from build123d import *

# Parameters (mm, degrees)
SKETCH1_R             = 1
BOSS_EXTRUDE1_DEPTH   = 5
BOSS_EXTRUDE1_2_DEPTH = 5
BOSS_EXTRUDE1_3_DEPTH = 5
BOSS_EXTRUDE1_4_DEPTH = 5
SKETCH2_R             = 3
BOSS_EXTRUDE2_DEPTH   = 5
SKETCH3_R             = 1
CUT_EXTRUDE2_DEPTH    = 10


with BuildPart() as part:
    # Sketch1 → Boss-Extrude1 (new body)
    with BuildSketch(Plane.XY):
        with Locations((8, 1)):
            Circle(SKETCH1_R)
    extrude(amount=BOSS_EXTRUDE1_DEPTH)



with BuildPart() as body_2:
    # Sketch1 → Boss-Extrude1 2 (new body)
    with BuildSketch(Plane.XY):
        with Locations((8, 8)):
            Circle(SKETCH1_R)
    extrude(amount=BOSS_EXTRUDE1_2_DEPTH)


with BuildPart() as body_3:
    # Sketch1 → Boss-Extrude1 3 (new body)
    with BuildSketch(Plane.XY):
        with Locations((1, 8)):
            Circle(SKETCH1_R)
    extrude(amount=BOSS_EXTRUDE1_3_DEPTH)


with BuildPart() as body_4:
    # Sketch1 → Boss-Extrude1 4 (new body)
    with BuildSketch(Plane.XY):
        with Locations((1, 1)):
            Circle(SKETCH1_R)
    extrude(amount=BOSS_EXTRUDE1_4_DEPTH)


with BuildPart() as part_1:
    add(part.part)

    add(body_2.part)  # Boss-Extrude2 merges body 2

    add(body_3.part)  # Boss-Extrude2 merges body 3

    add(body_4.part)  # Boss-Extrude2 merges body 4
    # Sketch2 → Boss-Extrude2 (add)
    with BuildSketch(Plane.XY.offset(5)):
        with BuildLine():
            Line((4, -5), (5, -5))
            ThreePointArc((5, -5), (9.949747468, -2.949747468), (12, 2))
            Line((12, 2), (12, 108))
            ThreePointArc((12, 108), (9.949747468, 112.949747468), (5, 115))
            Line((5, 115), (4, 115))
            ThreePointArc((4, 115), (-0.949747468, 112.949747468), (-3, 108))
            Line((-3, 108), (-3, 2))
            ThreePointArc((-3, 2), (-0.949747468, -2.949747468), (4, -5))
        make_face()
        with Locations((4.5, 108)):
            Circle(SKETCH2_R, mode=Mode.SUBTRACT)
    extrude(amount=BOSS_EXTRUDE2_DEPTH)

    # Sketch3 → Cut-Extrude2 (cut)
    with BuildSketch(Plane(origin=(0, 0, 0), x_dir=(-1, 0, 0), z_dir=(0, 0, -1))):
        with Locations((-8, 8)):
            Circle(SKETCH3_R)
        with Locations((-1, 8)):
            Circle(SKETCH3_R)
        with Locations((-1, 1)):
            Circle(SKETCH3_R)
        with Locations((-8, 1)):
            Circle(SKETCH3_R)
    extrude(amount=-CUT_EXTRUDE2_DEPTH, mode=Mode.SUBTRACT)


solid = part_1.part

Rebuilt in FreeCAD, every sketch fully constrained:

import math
import FreeCAD as App
import Part
import Sketcher

V = App.Vector

doc = App.newDocument("Part")
params = doc.addObject("Spreadsheet::Sheet", "Params")
for row, (alias, value) in enumerate([
    ("sketch1_diameter", "2 mm"),
    ("pad1_length", "5 mm"),
    ("sketch2_diameter", "2 mm"),
    ("pad2_length", "5 mm"),
    ("sketch3_diameter", "2 mm"),
    ("pad3_length", "5 mm"),
    ("sketch4_diameter", "2 mm"),
    ("pad4_length", "5 mm"),
    ("sketch5_diameter", "6 mm"),
    ("sketch5_radius", "7 mm"),
    ("sketch5_width", "1 mm"),
    ("sketch5_height", "106 mm"),
    ("pad5_length", "5 mm"),
    ("sketch6_diameter", "2 mm"),
    ("pocket1_length", "10 mm"),
], start=1):
    params.set(f"A{row}", alias)
    params.set(f"B{row}", "=" + value)
    params.setAlias(f"B{row}", alias)

body = doc.addObject("PartDesign::Body", "Body")

sketch1 = body.newObject("Sketcher::SketchObject", "Sketch")
sketch1.AttachmentSupport = (doc.getObject("XY_Plane"), [""])
sketch1.MapMode = "FlatFace"
sketch1.addGeometry(Part.Circle(V(8, 1, 0), V(0, 0, 1), 1), False)
sketch1.addConstraint([
    Sketcher.Constraint("Diameter", 0, 2.0),
    Sketcher.Constraint("DistanceX", -1, 1, 0, 3, 8.0),
    Sketcher.Constraint("DistanceY", -1, 1, 0, 3, 1.0),
])
sketch1.setExpression("Constraints[0]", "Params.sketch1_diameter")
pad1 = body.newObject("PartDesign::Pad", "Pad")
pad1.Profile = sketch1
pad1.setExpression("Length", "Params.pad1_length")
body2 = doc.addObject("PartDesign::Body", "Body001")

sketch2 = body2.newObject("Sketcher::SketchObject", "Sketch001")
sketch2.AttachmentSupport = (doc.getObject("XY_Plane001"), [""])
sketch2.MapMode = "FlatFace"
sketch2.addGeometry(Part.Circle(V(8, 8, 0), V(0, 0, 1), 1), False)
sketch2.addConstraint([
    Sketcher.Constraint("Diameter", 0, 2.0),
    Sketcher.Constraint("DistanceX", -1, 1, 0, 3, 8.0),
    Sketcher.Constraint("DistanceY", -1, 1, 0, 3, 8.0),
])
sketch2.setExpression("Constraints[0]", "Params.sketch2_diameter")
pad2 = body2.newObject("PartDesign::Pad", "Pad001")
pad2.Profile = sketch2
pad2.setExpression("Length", "Params.pad2_length")
body3 = doc.addObject("PartDesign::Body", "Body002")

sketch3 = body3.newObject("Sketcher::SketchObject", "Sketch002")
sketch3.AttachmentSupport = (doc.getObject("XY_Plane002"), [""])
sketch3.MapMode = "FlatFace"
sketch3.addGeometry(Part.Circle(V(1, 8, 0), V(0, 0, 1), 1), False)
sketch3.addConstraint([
    Sketcher.Constraint("Diameter", 0, 2.0),
    Sketcher.Constraint("DistanceX", -1, 1, 0, 3, 1.0),
    Sketcher.Constraint("DistanceY", -1, 1, 0, 3, 8.0),
])
sketch3.setExpression("Constraints[0]", "Params.sketch3_diameter")
pad3 = body3.newObject("PartDesign::Pad", "Pad002")
pad3.Profile = sketch3
pad3.setExpression("Length", "Params.pad3_length")
body4 = doc.addObject("PartDesign::Body", "Body003")

sketch4 = body4.newObject("Sketcher::SketchObject", "Sketch003")
sketch4.AttachmentSupport = (doc.getObject("XY_Plane003"), [""])
sketch4.MapMode = "FlatFace"
sketch4.addGeometry(Part.Circle(V(1, 1, 0), V(0, 0, 1), 1), False)
sketch4.addConstraint([
    Sketcher.Constraint("Diameter", 0, 2.0),
    Sketcher.Constraint("DistanceX", -1, 1, 0, 3, 1.0),
    Sketcher.Constraint("DistanceY", -1, 1, 0, 3, 1.0),
])
sketch4.setExpression("Constraints[0]", "Params.sketch4_diameter")
pad4 = body4.newObject("PartDesign::Pad", "Pad003")
pad4.Profile = sketch4
pad4.setExpression("Length", "Params.pad4_length")
body.AllowCompound = True
doc.recompute()

boolean = body.newObject("PartDesign::Boolean", "Boolean")
boolean.Type = "Fuse"
boolean.addObjects([body2])
doc.recompute()

boolean2 = body.newObject("PartDesign::Boolean", "Boolean001")
boolean2.Type = "Fuse"
boolean2.addObjects([body3])
doc.recompute()

boolean3 = body.newObject("PartDesign::Boolean", "Boolean002")
boolean3.Type = "Fuse"
boolean3.addObjects([body4])

sketch5 = body.newObject("Sketcher::SketchObject", "Sketch004")
sketch5.AttachmentSupport = (doc.getObject("XY_Plane"), [""])
sketch5.MapMode = "FlatFace"
sketch5.AttachmentOffset = App.Placement(V(0, 0, 5), App.Rotation())
sketch5.addGeometry([
    Part.LineSegment(V(4, -5, 0), V(5, -5, 0)),
    Part.ArcOfCircle(Part.Circle(V(5, 2, 0), V(0, 0, 1), 7), math.radians(-90), math.radians(0)),
    Part.LineSegment(V(12, 2, 0), V(12, 108, 0)),
    Part.ArcOfCircle(Part.Circle(V(5, 108, 0), V(0, 0, 1), 7), math.radians(0), math.radians(90)),
    Part.LineSegment(V(5, 115, 0), V(4, 115, 0)),
    Part.ArcOfCircle(Part.Circle(V(4, 108, 0), V(0, 0, 1), 7), math.radians(90), math.radians(180)),
    Part.LineSegment(V(-3, 108, 0), V(-3, 2, 0)),
    Part.ArcOfCircle(Part.Circle(V(4, 2, 0), V(0, 0, 1), 7), math.radians(-180), math.radians(-90)),
    Part.Circle(V(4.5, 108, 0), V(0, 0, 1), 3),
], False)
sketch5.addConstraint([
    Sketcher.Constraint("Tangent", 0, 2, 1, 1),
    Sketcher.Constraint("Tangent", 1, 2, 2, 1),
    Sketcher.Constraint("Tangent", 2, 2, 3, 1),
    Sketcher.Constraint("Tangent", 3, 2, 4, 1),
    Sketcher.Constraint("Tangent", 4, 2, 5, 1),
    Sketcher.Constraint("Tangent", 5, 2, 6, 1),
    Sketcher.Constraint("Tangent", 6, 2, 7, 1),
    Sketcher.Constraint("Tangent", 7, 2, 0, 1),
    Sketcher.Constraint("Horizontal", 0),
    Sketcher.Constraint("Vertical", 2),
    Sketcher.Constraint("Horizontal", 4),
    Sketcher.Constraint("Vertical", 6),
    Sketcher.Constraint("Equal", 1, 3),
    Sketcher.Constraint("Equal", 3, 5),
    Sketcher.Constraint("Equal", 5, 7),
    Sketcher.Constraint("Horizontal", 5, 3, 8, 3),
    Sketcher.Constraint("Diameter", 8, 6.0),
    Sketcher.Constraint("Radius", 1, 7.0),
    Sketcher.Constraint("DistanceX", 0, 1, 0, 2, 1.0),
    Sketcher.Constraint("DistanceY", 2, 1, 2, 2, 106.0),
    Sketcher.Constraint("DistanceX", -1, 1, 1, 3, 5.0),
    Sketcher.Constraint("DistanceY", -1, 1, 1, 3, 2.0),
    Sketcher.Constraint("DistanceX", -1, 1, 8, 3, 4.5),
])
sketch5.setExpression("Constraints[16]", "Params.sketch5_diameter")
sketch5.setExpression("Constraints[17]", "Params.sketch5_radius")
sketch5.setExpression("Constraints[18]", "Params.sketch5_width")
sketch5.setExpression("Constraints[19]", "Params.sketch5_height")
pad5 = body.newObject("PartDesign::Pad", "Pad004")
pad5.Profile = sketch5
pad5.setExpression("Length", "Params.pad5_length")

sketch6 = body.newObject("Sketcher::SketchObject", "Sketch005")
sketch6.AttachmentSupport = (doc.getObject("XY_Plane"), [""])
sketch6.MapMode = "FlatFace"
sketch6.addGeometry([
    Part.Circle(V(8, 8, 0), V(0, 0, 1), 1),
    Part.Circle(V(1, 8, 0), V(0, 0, 1), 1),
    Part.Circle(V(1, 1, 0), V(0, 0, 1), 1),
    Part.Circle(V(8, 1, 0), V(0, 0, 1), 1),
], False)
sketch6.addConstraint([
    Sketcher.Constraint("Equal", 0, 1),
    Sketcher.Constraint("Equal", 1, 2),
    Sketcher.Constraint("Equal", 2, 3),
    Sketcher.Constraint("Horizontal", 0, 3, 1, 3),
    Sketcher.Constraint("Horizontal", 2, 3, 3, 3),
    Sketcher.Constraint("Vertical", 1, 3, 2, 3),
    Sketcher.Constraint("Vertical", 0, 3, 3, 3),
    Sketcher.Constraint("Diameter", 0, 2.0),
    Sketcher.Constraint("DistanceX", -1, 1, 0, 3, 8.0),
    Sketcher.Constraint("DistanceY", -1, 1, 0, 3, 8.0),
    Sketcher.Constraint("DistanceX", -1, 1, 1, 3, 1.0),
    Sketcher.Constraint("DistanceY", -1, 1, 2, 3, 1.0),
])
sketch6.setExpression("Constraints[7]", "Params.sketch6_diameter")
pocket1 = body.newObject("PartDesign::Pocket", "Pocket")
pocket1.Profile = sketch6
pocket1.setExpression("Length", "Params.pocket1_length")
pocket1.Reversed = True

doc.recompute()
